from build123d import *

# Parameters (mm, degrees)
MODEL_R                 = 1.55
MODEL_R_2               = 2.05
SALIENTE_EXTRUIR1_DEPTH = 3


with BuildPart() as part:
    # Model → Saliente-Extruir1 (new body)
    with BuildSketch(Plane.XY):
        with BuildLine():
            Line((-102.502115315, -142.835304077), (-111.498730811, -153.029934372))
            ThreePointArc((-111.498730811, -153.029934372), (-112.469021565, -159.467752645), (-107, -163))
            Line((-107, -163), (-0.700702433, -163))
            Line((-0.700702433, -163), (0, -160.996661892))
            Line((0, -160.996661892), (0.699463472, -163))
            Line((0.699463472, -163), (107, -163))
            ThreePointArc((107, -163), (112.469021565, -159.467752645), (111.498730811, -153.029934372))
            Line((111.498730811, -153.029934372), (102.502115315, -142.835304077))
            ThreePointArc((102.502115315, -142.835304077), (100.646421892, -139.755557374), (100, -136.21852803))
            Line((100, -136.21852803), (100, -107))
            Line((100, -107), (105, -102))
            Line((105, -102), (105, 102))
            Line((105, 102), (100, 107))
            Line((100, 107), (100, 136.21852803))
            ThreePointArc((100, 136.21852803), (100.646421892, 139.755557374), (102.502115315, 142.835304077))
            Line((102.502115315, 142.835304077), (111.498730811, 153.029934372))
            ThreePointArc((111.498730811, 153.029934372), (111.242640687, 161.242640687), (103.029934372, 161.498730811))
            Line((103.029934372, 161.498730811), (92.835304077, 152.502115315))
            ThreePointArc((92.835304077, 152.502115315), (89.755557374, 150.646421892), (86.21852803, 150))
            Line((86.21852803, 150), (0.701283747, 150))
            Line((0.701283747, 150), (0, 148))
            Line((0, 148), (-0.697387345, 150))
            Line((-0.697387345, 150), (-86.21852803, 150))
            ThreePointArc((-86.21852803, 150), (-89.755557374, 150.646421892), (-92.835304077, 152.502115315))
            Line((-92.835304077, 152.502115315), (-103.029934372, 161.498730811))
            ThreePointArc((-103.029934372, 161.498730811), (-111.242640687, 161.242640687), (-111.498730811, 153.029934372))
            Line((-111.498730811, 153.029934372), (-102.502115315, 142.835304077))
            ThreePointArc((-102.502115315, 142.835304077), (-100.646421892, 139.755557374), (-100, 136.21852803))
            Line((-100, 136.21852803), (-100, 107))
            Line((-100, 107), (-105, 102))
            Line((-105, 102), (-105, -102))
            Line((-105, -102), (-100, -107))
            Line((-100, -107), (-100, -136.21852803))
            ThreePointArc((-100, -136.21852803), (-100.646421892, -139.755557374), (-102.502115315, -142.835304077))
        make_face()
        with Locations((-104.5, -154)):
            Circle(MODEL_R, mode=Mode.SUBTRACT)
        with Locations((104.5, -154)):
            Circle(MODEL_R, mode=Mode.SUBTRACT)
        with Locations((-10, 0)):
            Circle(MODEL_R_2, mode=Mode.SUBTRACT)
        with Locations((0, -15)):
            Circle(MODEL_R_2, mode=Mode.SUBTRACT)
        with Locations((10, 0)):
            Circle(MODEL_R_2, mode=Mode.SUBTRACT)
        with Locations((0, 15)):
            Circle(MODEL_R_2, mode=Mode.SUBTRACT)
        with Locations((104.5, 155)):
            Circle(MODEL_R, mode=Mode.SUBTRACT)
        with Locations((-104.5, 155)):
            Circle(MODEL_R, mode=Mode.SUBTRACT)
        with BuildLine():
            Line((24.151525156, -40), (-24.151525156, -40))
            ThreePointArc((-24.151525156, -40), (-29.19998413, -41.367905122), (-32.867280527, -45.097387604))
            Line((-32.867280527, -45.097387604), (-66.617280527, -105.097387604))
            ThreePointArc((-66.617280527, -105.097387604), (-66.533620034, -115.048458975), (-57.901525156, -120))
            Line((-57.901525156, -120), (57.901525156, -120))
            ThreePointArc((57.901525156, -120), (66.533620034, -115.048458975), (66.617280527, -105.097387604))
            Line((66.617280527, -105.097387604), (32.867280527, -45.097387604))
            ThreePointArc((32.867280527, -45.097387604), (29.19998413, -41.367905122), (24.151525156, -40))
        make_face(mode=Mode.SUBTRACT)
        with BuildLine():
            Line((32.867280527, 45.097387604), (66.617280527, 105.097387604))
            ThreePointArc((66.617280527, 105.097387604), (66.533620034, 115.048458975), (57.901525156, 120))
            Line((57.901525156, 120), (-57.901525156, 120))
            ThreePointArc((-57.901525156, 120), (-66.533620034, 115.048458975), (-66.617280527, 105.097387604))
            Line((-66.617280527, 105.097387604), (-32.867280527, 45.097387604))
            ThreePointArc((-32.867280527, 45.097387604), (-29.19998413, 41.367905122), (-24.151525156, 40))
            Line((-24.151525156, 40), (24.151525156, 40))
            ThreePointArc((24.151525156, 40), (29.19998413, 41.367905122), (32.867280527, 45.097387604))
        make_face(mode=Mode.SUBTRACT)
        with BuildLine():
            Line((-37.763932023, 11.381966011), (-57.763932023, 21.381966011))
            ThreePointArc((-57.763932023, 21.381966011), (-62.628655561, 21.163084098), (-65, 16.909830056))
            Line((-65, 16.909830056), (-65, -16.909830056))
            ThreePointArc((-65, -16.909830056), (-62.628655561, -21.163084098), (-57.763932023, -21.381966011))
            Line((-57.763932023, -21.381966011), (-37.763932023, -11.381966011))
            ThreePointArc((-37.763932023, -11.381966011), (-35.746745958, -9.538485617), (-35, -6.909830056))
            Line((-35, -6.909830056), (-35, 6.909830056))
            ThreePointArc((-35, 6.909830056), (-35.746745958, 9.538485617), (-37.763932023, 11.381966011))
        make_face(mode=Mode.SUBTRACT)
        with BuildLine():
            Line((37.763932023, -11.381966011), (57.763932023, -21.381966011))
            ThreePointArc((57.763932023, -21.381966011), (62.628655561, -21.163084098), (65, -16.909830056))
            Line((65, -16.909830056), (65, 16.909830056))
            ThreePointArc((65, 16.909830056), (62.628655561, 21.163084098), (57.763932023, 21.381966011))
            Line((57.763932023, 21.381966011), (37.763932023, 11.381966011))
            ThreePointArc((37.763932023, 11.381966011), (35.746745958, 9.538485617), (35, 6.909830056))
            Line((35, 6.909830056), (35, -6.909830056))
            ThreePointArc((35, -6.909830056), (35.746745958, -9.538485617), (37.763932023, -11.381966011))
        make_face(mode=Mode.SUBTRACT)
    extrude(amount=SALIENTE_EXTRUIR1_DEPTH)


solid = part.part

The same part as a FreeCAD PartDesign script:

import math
import FreeCAD as App
import Part
import Sketcher

V = App.Vector
Q = App.Units.Quantity

doc = App.newDocument("Part")
body = doc.addObject("PartDesign::Body", "Body")

# Sketch on XY plane
sketch1 = body.newObject("Sketcher::SketchObject", "Sketch")
sketch1.AttachmentSupport = (doc.getObject("XY_Plane"), [""])
sketch1.MapMode = "FlatFace"
sketch1.addGeometry(Part.LineSegment(V(-102.5, -142.8, 0), V(-111.5, -153, 0)), False)
sketch1.addGeometry(Part.ArcOfCircle(Part.Circle(V(-107, -157, 0), V(0, 0, 1), 6), math.radians(139), math.radians(270)), False)
sketch1.addGeometry(Part.LineSegment(V(-107, -163, 0), V(-0.7, -163, 0)), False)
sketch1.addGeometry(Part.LineSegment(V(-0.7, -163, 0), V(0, -161, 0)), False)
sketch1.addGeometry(Part.LineSegment(V(0, -161, 0), V(0.7, -163, 0)), False)
sketch1.addGeometry(Part.LineSegment(V(0.7, -163, 0), V(107, -163, 0)), False)
sketch1.addGeometry(Part.ArcOfCircle(Part.Circle(V(107, -157, 0), V(0, 0, 1), 6), math.radians(-90), math.radians(41)), False)
sketch1.addGeometry(Part.LineSegment(V(111.5, -153, 0), V(102.5, -142.8, 0)), False)
sketch1.addGeometry(Part.ArcOfCircle(Part.Circle(V(110, -136.2, 0), V(0, 0, 1), 10), math.radians(180), math.radians(221)), False)
sketch1.addGeometry(Part.LineSegment(V(100, -136.2, 0), V(100, -107, 0)), False)
sketch1.addGeometry(Part.LineSegment(V(100, -107, 0), V(105, -102, 0)), False)
sketch1.addGeometry(Part.LineSegment(V(105, -102, 0), V(105, 102, 0)), False)
sketch1.addGeometry(Part.LineSegment(V(105, 102, 0), V(100, 107, 0)), False)
sketch1.addGeometry(Part.LineSegment(V(100, 107, 0), V(100, 136.2, 0)), False)
sketch1.addGeometry(Part.ArcOfCircle(Part.Circle(V(110, 136.2, 0), V(0, 0, 1), 10), math.radians(139), math.radians(180)), False)
sketch1.addGeometry(Part.LineSegment(V(102.5, 142.8, 0), V(111.5, 153, 0)), False)
sketch1.addGeometry(Part.ArcOfCircle(Part.Circle(V(107, 157, 0), V(0, 0, 1), 6), math.radians(-41), math.radians(131)), False)
sketch1.addGeometry(Part.LineSegment(V(103, 161.5, 0), V(92.8, 152.5, 0)), False)
sketch1.addGeometry(Part.ArcOfCircle(Part.Circle(V(86.2, 160, 0), V(0, 0, 1), 10), math.radians(-90), math.radians(-49)), False)
sketch1.addGeometry(Part.LineSegment(V(86.2, 150, 0), V(0.7, 150, 0)), False)
sketch1.addGeometry(Part.LineSegment(V(0.7, 150, 0), V(0, 148, 0)), False)
sketch1.addGeometry(Part.LineSegment(V(0, 148, 0), V(-0.7, 150, 0)), False)
sketch1.addGeometry(Part.LineSegment(V(-0.7, 150, 0), V(-86.2, 150, 0)), False)
sketch1.addGeometry(Part.ArcOfCircle(Part.Circle(V(-86.2, 160, 0), V(0, 0, 1), 10), math.radians(-131), math.radians(-90)), False)
sketch1.addGeometry(Part.LineSegment(V(-92.8, 152.5, 0), V(-103, 161.5, 0)), False)
sketch1.addGeometry(Part.ArcOfCircle(Part.Circle(V(-107, 157, 0), V(0, 0, 1), 6), math.radians(49), math.radians(221)), False)
sketch1.addGeometry(Part.LineSegment(V(-111.5, 153, 0), V(-102.5, 142.8, 0)), False)
sketch1.addGeometry(Part.ArcOfCircle(Part.Circle(V(-110, 136.2, 0), V(0, 0, 1), 10), math.radians(0), math.radians(41)), False)
sketch1.addGeometry(Part.LineSegment(V(-100, 136.2, 0), V(-100, 107, 0)), False)
sketch1.addGeometry(Part.LineSegment(V(-100, 107, 0), V(-105, 102, 0)), False)
sketch1.addGeometry(Part.LineSegment(V(-105, 102, 0), V(-105, -102, 0)), False)
sketch1.addGeometry(Part.LineSegment(V(-105, -102, 0), V(-100, -107, 0)), False)
sketch1.addGeometry(Part.LineSegment(V(-100, -107, 0), V(-100, -136.2, 0)), False)
sketch1.addGeometry(Part.ArcOfCircle(Part.Circle(V(-110, -136.2, 0), V(0, 0, 1), 10), math.radians(-41), math.radians(0)), False)
sketch1.addGeometry(Part.Circle(V(-104.5, -154, 0), V(0, 0, 1), 1.6), False)
sketch1.addGeometry(Part.LineSegment(V(-24.2, -40, 0), V(24.2, -40, 0)), False)
sketch1.addGeometry(Part.ArcOfCircle(Part.Circle(V(24.2, -50, 0), V(0, 0, 1), 10), math.radians(29), math.radians(90)), False)
sketch1.addGeometry(Part.LineSegment(V(32.9, -45.1, 0), V(66.6, -105.1, 0)), False)
sketch1.addGeometry(Part.ArcOfCircle(Part.Circle(V(57.9, -110, 0), V(0, 0, 1), 10), math.radians(-90), math.radians(29)), False)
sketch1.addGeometry(Part.LineSegment(V(57.9, -120, 0), V(-57.9, -120, 0)), False)
sketch1.addGeometry(Part.ArcOfCircle(Part.Circle(V(-57.9, -110, 0), V(0, 0, 1), 10), math.radians(151), math.radians(270)), False)
sketch1.addGeometry(Part.LineSegment(V(-66.6, -105.1, 0), V(-32.9, -45.1, 0)), False)
sketch1.addGeometry(Part.ArcOfCircle(Part.Circle(V(-24.2, -50, 0), V(0, 0, 1), 10), math.radians(90), math.radians(151)), False)
sketch1.addGeometry(Part.LineSegment(V(-57.8, 21.4, 0), V(-37.8, 11.4, 0)), False)
sketch1.addGeometry(Part.ArcOfCircle(Part.Circle(V(-40, 6.9, 0), V(0, 0, 1), 5), math.radians(0), math.radians(63)), False)
sketch1.addGeometry(Part.LineSegment(V(-35, 6.9, 0), V(-35, -6.9, 0)), False)
sketch1.addGeometry(Part.ArcOfCircle(Part.Circle(V(-40, -6.9, 0), V(0, 0, 1), 5), math.radians(-63), math.radians(0)), False)
sketch1.addGeometry(Part.LineSegment(V(-37.8, -11.4, 0), V(-57.8, -21.4, 0)), False)
sketch1.addGeometry(Part.ArcOfCircle(Part.Circle(V(-60, -16.9, 0), V(0, 0, 1), 5), math.radians(180), math.radians(297)), False)
sketch1.addGeometry(Part.LineSegment(V(-65, -16.9, 0), V(-65, 16.9, 0)), False)
sketch1.addGeometry(Part.ArcOfCircle(Part.Circle(V(-60, 16.9, 0), V(0, 0, 1), 5), math.radians(63), math.radians(180)), False)
sketch1.addGeometry(Part.Circle(V(-10, 0, 0), V(0, 0, 1), 2), False)
sketch1.addGeometry(Part.Circle(V(104.5, -154, 0), V(0, 0, 1), 1.6), False)
sketch1.addGeometry(Part.Circle(V(0, -15, 0), V(0, 0, 1), 2), False)
sketch1.addGeometry(Part.Circle(V(10, 0, 0), V(0, 0, 1), 2), False)
sketch1.addGeometry(Part.LineSegment(V(57.8, -21.4, 0), V(37.8, -11.4, 0)), False)
sketch1.addGeometry(Part.ArcOfCircle(Part.Circle(V(40, -6.9, 0), V(0, 0, 1), 5), math.radians(180), math.radians(243)), False)
sketch1.addGeometry(Part.LineSegment(V(35, -6.9, 0), V(35, 6.9, 0)), False)
sketch1.addGeometry(Part.ArcOfCircle(Part.Circle(V(40, 6.9, 0), V(0, 0, 1), 5), math.radians(117), math.radians(180)), False)
sketch1.addGeometry(Part.LineSegment(V(37.8, 11.4, 0), V(57.8, 21.4, 0)), False)
sketch1.addGeometry(Part.ArcOfCircle(Part.Circle(V(60, 16.9, 0), V(0, 0, 1), 5), math.radians(0), math.radians(117)), False)
sketch1.addGeometry(Part.LineSegment(V(65, 16.9, 0), V(65, -16.9, 0)), False)
sketch1.addGeometry(Part.ArcOfCircle(Part.Circle(V(60, -16.9, 0), V(0, 0, 1), 5), math.radians(-117), math.radians(0)), False)
sketch1.addGeometry(Part.Circle(V(-104.5, 155, 0), V(0, 0, 1), 1.6), False)
sketch1.addGeometry(Part.Circle(V(0, 15, 0), V(0, 0, 1), 2), False)
sketch1.addGeometry(Part.LineSegment(V(66.6, 105.1, 0), V(32.9, 45.1, 0)), False)
sketch1.addGeometry(Part.ArcOfCircle(Part.Circle(V(24.2, 50, 0), V(0, 0, 1), 10), math.radians(-90), math.radians(-29)), False)
sketch1.addGeometry(Part.LineSegment(V(24.2, 40, 0), V(-24.2, 40, 0)), False)
sketch1.addGeometry(Part.ArcOfCircle(Part.Circle(V(-24.2, 50, 0), V(0, 0, 1), 10), math.radians(-151), math.radians(-90)), False)
sketch1.addGeometry(Part.LineSegment(V(-32.9, 45.1, 0), V(-66.6, 105.1, 0)), False)
sketch1.addGeometry(Part.ArcOfCircle(Part.Circle(V(-57.9, 110, 0), V(0, 0, 1), 10), math.radians(90), math.radians(209)), False)
sketch1.addGeometry(Part.LineSegment(V(-57.9, 120, 0), V(57.9, 120, 0)), False)
sketch1.addGeometry(Part.ArcOfCircle(Part.Circle(V(57.9, 110, 0), V(0, 0, 1), 10), math.radians(-29), math.radians(90)), False)
sketch1.addGeometry(Part.Circle(V(104.5, 155, 0), V(0, 0, 1), 1.6), False)
sketch1.addConstraint(Sketcher.Constraint("Tangent", 0, 2, 1, 1))
sketch1.addConstraint(Sketcher.Constraint("Tangent", 1, 2, 2, 1))
sketch1.addConstraint(Sketcher.Constraint("Coincident", 2, 2, 3, 1))
sketch1.addConstraint(Sketcher.Constraint("Coincident", 3, 2, 4, 1))
sketch1.addConstraint(Sketcher.Constraint("Coincident", 4, 2, 5, 1))
sketch1.addConstraint(Sketcher.Constraint("Tangent", 5, 2, 6, 1))
sketch1.addConstraint(Sketcher.Constraint("Tangent", 6, 2, 7, 1))
sketch1.addConstraint(Sketcher.Constraint("Tangent", 7, 2, 8, 2))
sketch1.addConstraint(Sketcher.Constraint("Tangent", 8, 1, 9, 1))
sketch1.addConstraint(Sketcher.Constraint("Coincident", 9, 2, 10, 1))
sketch1.addConstraint(Sketcher.Constraint("Coincident", 10, 2, 11, 1))
sketch1.addConstraint(Sketcher.Constraint("Coincident", 11, 2, 12, 1))
sketch1.addConstraint(Sketcher.Constraint("Coincident", 12, 2, 13, 1))
sketch1.addConstraint(Sketcher.Constraint("Tangent", 13, 2, 14, 2))
sketch1.addConstraint(Sketcher.Constraint("Tangent", 14, 1, 15, 1))
sketch1.addConstraint(Sketcher.Constraint("Tangent", 15, 2, 16, 1))
sketch1.addConstraint(Sketcher.Constraint("Tangent", 16, 2, 17, 1))
sketch1.addConstraint(Sketcher.Constraint("Tangent", 17, 2, 18, 2))
sketch1.addConstraint(Sketcher.Constraint("Tangent", 18, 1, 19, 1))
sketch1.addConstraint(Sketcher.Constraint("Coincident", 19, 2, 20, 1))
sketch1.addConstraint(Sketcher.Constraint("Coincident", 20, 2, 21, 1))
sketch1.addConstraint(Sketcher.Constraint("Coincident", 21, 2, 22, 1))
sketch1.addConstraint(Sketcher.Constraint("Tangent", 22, 2, 23, 2))
sketch1.addConstraint(Sketcher.Constraint("Tangent", 23, 1, 24, 1))
sketch1.addConstraint(Sketcher.Constraint("Tangent", 24, 2, 25, 1))
sketch1.addConstraint(Sketcher.Constraint("Tangent", 25, 2, 26, 1))
sketch1.addConstraint(Sketcher.Constraint("Tangent", 26, 2, 27, 2))
sketch1.addConstraint(Sketcher.Constraint("Tangent", 27, 1, 28, 1))
sketch1.addConstraint(Sketcher.Constraint("Coincident", 28, 2, 29, 1))
sketch1.addConstraint(Sketcher.Constraint("Coincident", 29, 2, 30, 1))
sketch1.addConstraint(Sketcher.Constraint("Coincident", 30, 2, 31, 1))
sketch1.addConstraint(Sketcher.Constraint("Coincident", 31, 2, 32, 1))
sketch1.addConstraint(Sketcher.Constraint("Tangent", 32, 2, 33, 2))
sketch1.addConstraint(Sketcher.Constraint("Tangent", 33, 1, 0, 1))
sketch1.addConstraint(Sketcher.Constraint("Tangent", 35, 2, 36, 2))
sketch1.addConstraint(Sketcher.Constraint("Tangent", 36, 1, 37, 1))
sketch1.addConstraint(Sketcher.Constraint("Tangent", 37, 2, 38, 2))
sketch1.addConstraint(Sketcher.Constraint("Tangent", 38, 1, 39, 1))
sketch1.addConstraint(Sketcher.Constraint("Tangent", 39, 2, 40, 2))
sketch1.addConstraint(Sketcher.Constraint("Tangent", 40, 1, 41, 1))
sketch1.addConstraint(Sketcher.Constraint("Tangent", 41, 2, 42, 2))
sketch1.addConstraint(Sketcher.Constraint("Tangent", 42, 1, 35, 1))
sketch1.addConstraint(Sketcher.Constraint("Tangent", 43, 2, 44, 2))
sketch1.addConstraint(Sketcher.Constraint("Tangent", 44, 1, 45, 1))
sketch1.addConstraint(Sketcher.Constraint("Tangent", 45, 2, 46, 2))
sketch1.addConstraint(Sketcher.Constraint("Tangent", 46, 1, 47, 1))
sketch1.addConstraint(Sketcher.Constraint("Tangent", 47, 2, 48, 2))
sketch1.addConstraint(Sketcher.Constraint("Tangent", 48, 1, 49, 1))
sketch1.addConstraint(Sketcher.Constraint("Tangent", 49, 2, 50, 2))
sketch1.addConstraint(Sketcher.Constraint("Tangent", 50, 1, 43, 1))
sketch1.addConstraint(Sketcher.Constraint("Tangent", 55, 2, 56, 2))
sketch1.addConstraint(Sketcher.Constraint("Tangent", 56, 1, 57, 1))
sketch1.addConstraint(Sketcher.Constraint("Tangent", 57, 2, 58, 2))
sketch1.addConstraint(Sketcher.Constraint("Tangent", 58, 1, 59, 1))
sketch1.addConstraint(Sketcher.Constraint("Tangent", 59, 2, 60, 2))
sketch1.addConstraint(Sketcher.Constraint("Tangent", 60, 1, 61, 1))
sketch1.addConstraint(Sketcher.Constraint("Tangent", 61, 2, 62, 2))
sketch1.addConstraint(Sketcher.Constraint("Tangent", 62, 1, 55, 1))
sketch1.addConstraint(Sketcher.Constraint("Tangent", 65, 2, 66, 2))
sketch1.addConstraint(Sketcher.Constraint("Tangent", 66, 1, 67, 1))
sketch1.addConstraint(Sketcher.Constraint("Tangent", 67, 2, 68, 2))
sketch1.addConstraint(Sketcher.Constraint("Tangent", 68, 1, 69, 1))
sketch1.addConstraint(Sketcher.Constraint("Tangent", 69, 2, 70, 2))
sketch1.addConstraint(Sketcher.Constraint("Tangent", 70, 1, 71, 1))
sketch1.addConstraint(Sketcher.Constraint("Tangent", 71, 2, 72, 2))
sketch1.addConstraint(Sketcher.Constraint("Tangent", 72, 1, 65, 1))
sketch1.addConstraint(Sketcher.Constraint("Horizontal", 2))
sketch1.addConstraint(Sketcher.Constraint("Horizontal", 5))
sketch1.addConstraint(Sketcher.Constraint("Vertical", 9))
sketch1.addConstraint(Sketcher.Constraint("Vertical", 11))
sketch1.addConstraint(Sketcher.Constraint("Vertical", 13))
sketch1.addConstraint(Sketcher.Constraint("Horizontal", 19))
sketch1.addConstraint(Sketcher.Constraint("Horizontal", 22))
sketch1.addConstraint(Sketcher.Constraint("Vertical", 28))
sketch1.addConstraint(Sketcher.Constraint("Vertical", 30))
sketch1.addConstraint(Sketcher.Constraint("Vertical", 32))
sketch1.addConstraint(Sketcher.Constraint("Horizontal", 35))
sketch1.addConstraint(Sketcher.Constraint("Horizontal", 39))
sketch1.addConstraint(Sketcher.Constraint("Vertical", 45))
sketch1.addConstraint(Sketcher.Constraint("Vertical", 49))
sketch1.addConstraint(Sketcher.Constraint("Vertical", 57))
sketch1.addConstraint(Sketcher.Constraint("Vertical", 61))
sketch1.addConstraint(Sketcher.Constraint("Horizontal", 67))
sketch1.addConstraint(Sketcher.Constraint("Horizontal", 71))
sketch1.addConstraint(Sketcher.Constraint("Equal", 1, 6))
sketch1.addConstraint(Sketcher.Constraint("Equal", 8, 14))
sketch1.addConstraint(Sketcher.Constraint("Equal", 6, 16))
sketch1.addConstraint(Sketcher.Constraint("Equal", 14, 18))
sketch1.addConstraint(Sketcher.Constraint("Equal", 18, 23))
sketch1.addConstraint(Sketcher.Constraint("Equal", 16, 25))
sketch1.addConstraint(Sketcher.Constraint("Equal", 23, 27))
sketch1.addConstraint(Sketcher.Constraint("Equal", 27, 33))
sketch1.addConstraint(Sketcher.Constraint("Equal", 33, 36))
sketch1.addConstraint(Sketcher.Constraint("Equal", 36, 38))
sketch1.addConstraint(Sketcher.Constraint("Equal", 38, 40))
sketch1.addConstraint(Sketcher.Constraint("Equal", 40, 42))
sketch1.addConstraint(Sketcher.Constraint("Equal", 44, 46))
sketch1.addConstraint(Sketcher.Constraint("Equal", 46, 48))
sketch1.addConstraint(Sketcher.Constraint("Equal", 48, 50))
sketch1.addConstraint(Sketcher.Constraint("Equal", 34, 52))
sketch1.addConstraint(Sketcher.Constraint("Equal", 51, 53))
sketch1.addConstraint(Sketcher.Constraint("Equal", 53, 54))
sketch1.addConstraint(Sketcher.Constraint("Equal", 50, 56))
sketch1.addConstraint(Sketcher.Constraint("Equal", 56, 58))
sketch1.addConstraint(Sketcher.Constraint("Equal", 58, 60))
sketch1.addConstraint(Sketcher.Constraint("Equal", 60, 62))
sketch1.addConstraint(Sketcher.Constraint("Equal", 52, 63))
sketch1.addConstraint(Sketcher.Constraint("Equal", 54, 64))
sketch1.addConstraint(Sketcher.Constraint("Equal", 42, 66))
sketch1.addConstraint(Sketcher.Constraint("Equal", 66, 68))
sketch1.addConstraint(Sketcher.Constraint("Equal", 68, 70))
sketch1.addConstraint(Sketcher.Constraint("Equal", 70, 72))
sketch1.addConstraint(Sketcher.Constraint("Equal", 63, 73))
sketch1.addConstraint(Sketcher.Constraint("Symmetric", 1, 3, 16, 3, -1, 1))
sketch1.addConstraint(Sketcher.Constraint("Symmetric", 6, 3, 25, 3, -1, 1))
sketch1.addConstraint(Sketcher.Constraint("Symmetric", 8, 3, 27, 3, -1, 1))
sketch1.addConstraint(Sketcher.Constraint("Symmetric", 14, 3, 33, 3, -1, 1))
sketch1.addConstraint(Sketcher.Constraint("Symmetric", 51, 3, 54, 3, -1, 1))
sketch1.addConstraint(Sketcher.Constraint("Symmetric", 44, 3, 56, 3, -1, 1))
sketch1.addConstraint(Sketcher.Constraint("Symmetric", 48, 3, 60, 3, -1, 1))
sketch1.addConstraint(Sketcher.Constraint("Symmetric", 53, 3, 64, 3, -1, 1))
sketch1.addConstraint(Sketcher.Constraint("Symmetric", 42, 3, 66, 3, -1, 1))
sketch1.addConstraint(Sketcher.Constraint("Symmetric", 38, 3, 70, 3, -1, 1))
sketch1.addConstraint(Sketcher.Constraint("Symmetric", 10, 2, 29, 2, -1, 1))
sketch1.addConstraint(Sketcher.Constraint("Symmetric", 1, 3, 6, 3, -2))
sketch1.addConstraint(Sketcher.Constraint("Symmetric", 18, 3, 23, 3, -2))
sketch1.addConstraint(Sketcher.Constraint("Symmetric", 14, 3, 27, 3, -2))
sketch1.addConstraint(Sketcher.Constraint("Symmetric", 34, 3, 52, 3, -2))
sketch1.addConstraint(Sketcher.Constraint("Symmetric", 63, 3, 73, 3, -2))
sketch1.addConstraint(Sketcher.Constraint("Symmetric", 37, 2, 40, 1, -2))
sketch1.addConstraint(Sketcher.Constraint("Symmetric", 46, 1, 55, 2, -2))
sketch1.addConstraint(Sketcher.Constraint("Symmetric", 43, 2, 58, 1, -2))
sketch1.addConstraint(Sketcher.Constraint("Symmetric", 65, 2, 68, 1, -2))
sketch1.addConstraint(Sketcher.Constraint("PointOnObject", 51, 3, -1))
sketch1.addConstraint(Sketcher.Constraint("PointOnObject", 53, 3, -2))
sketch1.addConstraint(Sketcher.Constraint("PointOnObject", 3, 2, -2))
sketch1.addConstraint(Sketcher.Constraint("PointOnObject", 20, 2, -2))
sketch1.addConstraint(Sketcher.Constraint("Perpendicular", 10, 12))
sketch1.addConstraint(Sketcher.Constraint("Perpendicular", 7, 17))
sketch1.addConstraint(Sketcher.Constraint("Perpendicular", 12, 29))
sketch1.addConstraint(Sketcher.Constraint("Perpendicular", 29, 31))
sketch1.addConstraint(Sketcher.Constraint("Horizontal", 12, 2, 28, 2))
sketch1.addConstraint(Sketcher.Constraint("Horizontal", 11, 2, 29, 2))
sketch1.addConstraint(Sketcher.Constraint("Horizontal", 10, 2, 30, 2))
sketch1.addConstraint(Sketcher.Constraint("Vertical", 34, 3, 63, 3))
sketch1.addConstraint(Sketcher.Constraint("Equal", 15, 17))
sketch1.addConstraint(Sketcher.Constraint("Radius", 1, Q("6 mm")))
sketch1.addConstraint(Sketcher.Constraint("Radius", 8, Q("10 mm")))
sketch1.addConstraint(Sketcher.Constraint("Radius", 44, Q("5 mm")))
sketch1.addConstraint(Sketcher.Constraint("Diameter", 34, Q("3.1 mm")))
sketch1.addConstraint(Sketcher.Constraint("Diameter", 51, Q("4.1 mm")))
sketch1.addConstraint(Sketcher.Constraint("DistanceY", 11, 1, 11, 2, Q("204 mm")))
sketch1.addConstraint(Sketcher.Constraint("DistanceX", 1, 3, -1, 1, Q("107 mm")))
sketch1.addConstraint(Sketcher.Constraint("DistanceY", 1, 3, -1, 1, Q("157 mm")))
sketch1.addConstraint(Sketcher.Constraint("DistanceX", -1, 1, 8, 3, Q("110 mm")))
sketch1.addConstraint(Sketcher.Constraint("DistanceY", 34, 3, -1, 1, Q("154 mm")))
sketch1.addConstraint(Sketcher.Constraint("DistanceY", 36, 3, -1, 1, Q("50 mm")))
sketch1.addConstraint(Sketcher.Constraint("DistanceY", 38, 3, -1, 1, Q("110 mm")))
sketch1.addConstraint(Sketcher.Constraint("DistanceX", 44, 3, -1, 1, Q("40 mm")))
sketch1.addConstraint(Sketcher.Constraint("DistanceX", 48, 3, -1, 1, Q("60 mm")))
sketch1.addConstraint(Sketcher.Constraint("DistanceX", 51, 3, -1, 1, Q("10 mm")))
sketch1.addConstraint(Sketcher.Constraint("DistanceY", 53, 3, -1, 1, Q("15 mm")))
sketch1.addConstraint(Sketcher.Constraint("DistanceY", -1, 1, 63, 3, Q("155 mm")))
sketch1.addConstraint(Sketcher.Constraint("DistanceY", 9, 2, -1, 1, Q("107 mm")))
sketch1.addConstraint(Sketcher.Constraint("DistanceY", -1, 1, 20, 2, Q("148 mm")))
sketch1.addConstraint(Sketcher.Constraint("DistanceX", 34, 3, -1, 1, Q("104.5 mm")))
sketch1.addConstraint(Sketcher.Constraint("Distance", 21, Q("2.1181 mm")))
sketch1.addConstraint(Sketcher.Constraint("DistanceX", 22, 2, 22, 1, Q("85.521141 mm")))
sketch1.addConstraint(Sketcher.Constraint("DistanceX", 35, 1, 35, 2, Q("48.30305 mm")))
sketch1.addConstraint(Sketcher.Constraint("DistanceX", 39, 2, 39, 1, Q("115.80305 mm")))
sketch1.addConstraint(Sketcher.Constraint("DistanceY", 45, 2, 45, 1, Q("13.81966 mm")))
sketch1.addConstraint(Sketcher.Constraint("DistanceY", 49, 1, 49, 2, Q("33.81966 mm")))
sketch1.addConstraint(Sketcher.Constraint("DistanceX", 2, 1, 2, 2, Q("106.299298 mm")))
sketch1.addConstraint(Sketcher.Constraint("DistanceX", 5, 1, 5, 2, Q("106.300537 mm")))
sketch1.addConstraint(Sketcher.Constraint("DistanceX", 19, 2, 19, 1, Q("85.517244 mm")))
sketch1.addConstraint(Sketcher.Constraint("DistanceY", 3, 2, -1, 1, Q("160.996662 mm")))
pad1 = body.newObject("PartDesign::Pad", "Pad")
pad1.Profile = sketch1
pad1.Length = 3

doc.recompute()
